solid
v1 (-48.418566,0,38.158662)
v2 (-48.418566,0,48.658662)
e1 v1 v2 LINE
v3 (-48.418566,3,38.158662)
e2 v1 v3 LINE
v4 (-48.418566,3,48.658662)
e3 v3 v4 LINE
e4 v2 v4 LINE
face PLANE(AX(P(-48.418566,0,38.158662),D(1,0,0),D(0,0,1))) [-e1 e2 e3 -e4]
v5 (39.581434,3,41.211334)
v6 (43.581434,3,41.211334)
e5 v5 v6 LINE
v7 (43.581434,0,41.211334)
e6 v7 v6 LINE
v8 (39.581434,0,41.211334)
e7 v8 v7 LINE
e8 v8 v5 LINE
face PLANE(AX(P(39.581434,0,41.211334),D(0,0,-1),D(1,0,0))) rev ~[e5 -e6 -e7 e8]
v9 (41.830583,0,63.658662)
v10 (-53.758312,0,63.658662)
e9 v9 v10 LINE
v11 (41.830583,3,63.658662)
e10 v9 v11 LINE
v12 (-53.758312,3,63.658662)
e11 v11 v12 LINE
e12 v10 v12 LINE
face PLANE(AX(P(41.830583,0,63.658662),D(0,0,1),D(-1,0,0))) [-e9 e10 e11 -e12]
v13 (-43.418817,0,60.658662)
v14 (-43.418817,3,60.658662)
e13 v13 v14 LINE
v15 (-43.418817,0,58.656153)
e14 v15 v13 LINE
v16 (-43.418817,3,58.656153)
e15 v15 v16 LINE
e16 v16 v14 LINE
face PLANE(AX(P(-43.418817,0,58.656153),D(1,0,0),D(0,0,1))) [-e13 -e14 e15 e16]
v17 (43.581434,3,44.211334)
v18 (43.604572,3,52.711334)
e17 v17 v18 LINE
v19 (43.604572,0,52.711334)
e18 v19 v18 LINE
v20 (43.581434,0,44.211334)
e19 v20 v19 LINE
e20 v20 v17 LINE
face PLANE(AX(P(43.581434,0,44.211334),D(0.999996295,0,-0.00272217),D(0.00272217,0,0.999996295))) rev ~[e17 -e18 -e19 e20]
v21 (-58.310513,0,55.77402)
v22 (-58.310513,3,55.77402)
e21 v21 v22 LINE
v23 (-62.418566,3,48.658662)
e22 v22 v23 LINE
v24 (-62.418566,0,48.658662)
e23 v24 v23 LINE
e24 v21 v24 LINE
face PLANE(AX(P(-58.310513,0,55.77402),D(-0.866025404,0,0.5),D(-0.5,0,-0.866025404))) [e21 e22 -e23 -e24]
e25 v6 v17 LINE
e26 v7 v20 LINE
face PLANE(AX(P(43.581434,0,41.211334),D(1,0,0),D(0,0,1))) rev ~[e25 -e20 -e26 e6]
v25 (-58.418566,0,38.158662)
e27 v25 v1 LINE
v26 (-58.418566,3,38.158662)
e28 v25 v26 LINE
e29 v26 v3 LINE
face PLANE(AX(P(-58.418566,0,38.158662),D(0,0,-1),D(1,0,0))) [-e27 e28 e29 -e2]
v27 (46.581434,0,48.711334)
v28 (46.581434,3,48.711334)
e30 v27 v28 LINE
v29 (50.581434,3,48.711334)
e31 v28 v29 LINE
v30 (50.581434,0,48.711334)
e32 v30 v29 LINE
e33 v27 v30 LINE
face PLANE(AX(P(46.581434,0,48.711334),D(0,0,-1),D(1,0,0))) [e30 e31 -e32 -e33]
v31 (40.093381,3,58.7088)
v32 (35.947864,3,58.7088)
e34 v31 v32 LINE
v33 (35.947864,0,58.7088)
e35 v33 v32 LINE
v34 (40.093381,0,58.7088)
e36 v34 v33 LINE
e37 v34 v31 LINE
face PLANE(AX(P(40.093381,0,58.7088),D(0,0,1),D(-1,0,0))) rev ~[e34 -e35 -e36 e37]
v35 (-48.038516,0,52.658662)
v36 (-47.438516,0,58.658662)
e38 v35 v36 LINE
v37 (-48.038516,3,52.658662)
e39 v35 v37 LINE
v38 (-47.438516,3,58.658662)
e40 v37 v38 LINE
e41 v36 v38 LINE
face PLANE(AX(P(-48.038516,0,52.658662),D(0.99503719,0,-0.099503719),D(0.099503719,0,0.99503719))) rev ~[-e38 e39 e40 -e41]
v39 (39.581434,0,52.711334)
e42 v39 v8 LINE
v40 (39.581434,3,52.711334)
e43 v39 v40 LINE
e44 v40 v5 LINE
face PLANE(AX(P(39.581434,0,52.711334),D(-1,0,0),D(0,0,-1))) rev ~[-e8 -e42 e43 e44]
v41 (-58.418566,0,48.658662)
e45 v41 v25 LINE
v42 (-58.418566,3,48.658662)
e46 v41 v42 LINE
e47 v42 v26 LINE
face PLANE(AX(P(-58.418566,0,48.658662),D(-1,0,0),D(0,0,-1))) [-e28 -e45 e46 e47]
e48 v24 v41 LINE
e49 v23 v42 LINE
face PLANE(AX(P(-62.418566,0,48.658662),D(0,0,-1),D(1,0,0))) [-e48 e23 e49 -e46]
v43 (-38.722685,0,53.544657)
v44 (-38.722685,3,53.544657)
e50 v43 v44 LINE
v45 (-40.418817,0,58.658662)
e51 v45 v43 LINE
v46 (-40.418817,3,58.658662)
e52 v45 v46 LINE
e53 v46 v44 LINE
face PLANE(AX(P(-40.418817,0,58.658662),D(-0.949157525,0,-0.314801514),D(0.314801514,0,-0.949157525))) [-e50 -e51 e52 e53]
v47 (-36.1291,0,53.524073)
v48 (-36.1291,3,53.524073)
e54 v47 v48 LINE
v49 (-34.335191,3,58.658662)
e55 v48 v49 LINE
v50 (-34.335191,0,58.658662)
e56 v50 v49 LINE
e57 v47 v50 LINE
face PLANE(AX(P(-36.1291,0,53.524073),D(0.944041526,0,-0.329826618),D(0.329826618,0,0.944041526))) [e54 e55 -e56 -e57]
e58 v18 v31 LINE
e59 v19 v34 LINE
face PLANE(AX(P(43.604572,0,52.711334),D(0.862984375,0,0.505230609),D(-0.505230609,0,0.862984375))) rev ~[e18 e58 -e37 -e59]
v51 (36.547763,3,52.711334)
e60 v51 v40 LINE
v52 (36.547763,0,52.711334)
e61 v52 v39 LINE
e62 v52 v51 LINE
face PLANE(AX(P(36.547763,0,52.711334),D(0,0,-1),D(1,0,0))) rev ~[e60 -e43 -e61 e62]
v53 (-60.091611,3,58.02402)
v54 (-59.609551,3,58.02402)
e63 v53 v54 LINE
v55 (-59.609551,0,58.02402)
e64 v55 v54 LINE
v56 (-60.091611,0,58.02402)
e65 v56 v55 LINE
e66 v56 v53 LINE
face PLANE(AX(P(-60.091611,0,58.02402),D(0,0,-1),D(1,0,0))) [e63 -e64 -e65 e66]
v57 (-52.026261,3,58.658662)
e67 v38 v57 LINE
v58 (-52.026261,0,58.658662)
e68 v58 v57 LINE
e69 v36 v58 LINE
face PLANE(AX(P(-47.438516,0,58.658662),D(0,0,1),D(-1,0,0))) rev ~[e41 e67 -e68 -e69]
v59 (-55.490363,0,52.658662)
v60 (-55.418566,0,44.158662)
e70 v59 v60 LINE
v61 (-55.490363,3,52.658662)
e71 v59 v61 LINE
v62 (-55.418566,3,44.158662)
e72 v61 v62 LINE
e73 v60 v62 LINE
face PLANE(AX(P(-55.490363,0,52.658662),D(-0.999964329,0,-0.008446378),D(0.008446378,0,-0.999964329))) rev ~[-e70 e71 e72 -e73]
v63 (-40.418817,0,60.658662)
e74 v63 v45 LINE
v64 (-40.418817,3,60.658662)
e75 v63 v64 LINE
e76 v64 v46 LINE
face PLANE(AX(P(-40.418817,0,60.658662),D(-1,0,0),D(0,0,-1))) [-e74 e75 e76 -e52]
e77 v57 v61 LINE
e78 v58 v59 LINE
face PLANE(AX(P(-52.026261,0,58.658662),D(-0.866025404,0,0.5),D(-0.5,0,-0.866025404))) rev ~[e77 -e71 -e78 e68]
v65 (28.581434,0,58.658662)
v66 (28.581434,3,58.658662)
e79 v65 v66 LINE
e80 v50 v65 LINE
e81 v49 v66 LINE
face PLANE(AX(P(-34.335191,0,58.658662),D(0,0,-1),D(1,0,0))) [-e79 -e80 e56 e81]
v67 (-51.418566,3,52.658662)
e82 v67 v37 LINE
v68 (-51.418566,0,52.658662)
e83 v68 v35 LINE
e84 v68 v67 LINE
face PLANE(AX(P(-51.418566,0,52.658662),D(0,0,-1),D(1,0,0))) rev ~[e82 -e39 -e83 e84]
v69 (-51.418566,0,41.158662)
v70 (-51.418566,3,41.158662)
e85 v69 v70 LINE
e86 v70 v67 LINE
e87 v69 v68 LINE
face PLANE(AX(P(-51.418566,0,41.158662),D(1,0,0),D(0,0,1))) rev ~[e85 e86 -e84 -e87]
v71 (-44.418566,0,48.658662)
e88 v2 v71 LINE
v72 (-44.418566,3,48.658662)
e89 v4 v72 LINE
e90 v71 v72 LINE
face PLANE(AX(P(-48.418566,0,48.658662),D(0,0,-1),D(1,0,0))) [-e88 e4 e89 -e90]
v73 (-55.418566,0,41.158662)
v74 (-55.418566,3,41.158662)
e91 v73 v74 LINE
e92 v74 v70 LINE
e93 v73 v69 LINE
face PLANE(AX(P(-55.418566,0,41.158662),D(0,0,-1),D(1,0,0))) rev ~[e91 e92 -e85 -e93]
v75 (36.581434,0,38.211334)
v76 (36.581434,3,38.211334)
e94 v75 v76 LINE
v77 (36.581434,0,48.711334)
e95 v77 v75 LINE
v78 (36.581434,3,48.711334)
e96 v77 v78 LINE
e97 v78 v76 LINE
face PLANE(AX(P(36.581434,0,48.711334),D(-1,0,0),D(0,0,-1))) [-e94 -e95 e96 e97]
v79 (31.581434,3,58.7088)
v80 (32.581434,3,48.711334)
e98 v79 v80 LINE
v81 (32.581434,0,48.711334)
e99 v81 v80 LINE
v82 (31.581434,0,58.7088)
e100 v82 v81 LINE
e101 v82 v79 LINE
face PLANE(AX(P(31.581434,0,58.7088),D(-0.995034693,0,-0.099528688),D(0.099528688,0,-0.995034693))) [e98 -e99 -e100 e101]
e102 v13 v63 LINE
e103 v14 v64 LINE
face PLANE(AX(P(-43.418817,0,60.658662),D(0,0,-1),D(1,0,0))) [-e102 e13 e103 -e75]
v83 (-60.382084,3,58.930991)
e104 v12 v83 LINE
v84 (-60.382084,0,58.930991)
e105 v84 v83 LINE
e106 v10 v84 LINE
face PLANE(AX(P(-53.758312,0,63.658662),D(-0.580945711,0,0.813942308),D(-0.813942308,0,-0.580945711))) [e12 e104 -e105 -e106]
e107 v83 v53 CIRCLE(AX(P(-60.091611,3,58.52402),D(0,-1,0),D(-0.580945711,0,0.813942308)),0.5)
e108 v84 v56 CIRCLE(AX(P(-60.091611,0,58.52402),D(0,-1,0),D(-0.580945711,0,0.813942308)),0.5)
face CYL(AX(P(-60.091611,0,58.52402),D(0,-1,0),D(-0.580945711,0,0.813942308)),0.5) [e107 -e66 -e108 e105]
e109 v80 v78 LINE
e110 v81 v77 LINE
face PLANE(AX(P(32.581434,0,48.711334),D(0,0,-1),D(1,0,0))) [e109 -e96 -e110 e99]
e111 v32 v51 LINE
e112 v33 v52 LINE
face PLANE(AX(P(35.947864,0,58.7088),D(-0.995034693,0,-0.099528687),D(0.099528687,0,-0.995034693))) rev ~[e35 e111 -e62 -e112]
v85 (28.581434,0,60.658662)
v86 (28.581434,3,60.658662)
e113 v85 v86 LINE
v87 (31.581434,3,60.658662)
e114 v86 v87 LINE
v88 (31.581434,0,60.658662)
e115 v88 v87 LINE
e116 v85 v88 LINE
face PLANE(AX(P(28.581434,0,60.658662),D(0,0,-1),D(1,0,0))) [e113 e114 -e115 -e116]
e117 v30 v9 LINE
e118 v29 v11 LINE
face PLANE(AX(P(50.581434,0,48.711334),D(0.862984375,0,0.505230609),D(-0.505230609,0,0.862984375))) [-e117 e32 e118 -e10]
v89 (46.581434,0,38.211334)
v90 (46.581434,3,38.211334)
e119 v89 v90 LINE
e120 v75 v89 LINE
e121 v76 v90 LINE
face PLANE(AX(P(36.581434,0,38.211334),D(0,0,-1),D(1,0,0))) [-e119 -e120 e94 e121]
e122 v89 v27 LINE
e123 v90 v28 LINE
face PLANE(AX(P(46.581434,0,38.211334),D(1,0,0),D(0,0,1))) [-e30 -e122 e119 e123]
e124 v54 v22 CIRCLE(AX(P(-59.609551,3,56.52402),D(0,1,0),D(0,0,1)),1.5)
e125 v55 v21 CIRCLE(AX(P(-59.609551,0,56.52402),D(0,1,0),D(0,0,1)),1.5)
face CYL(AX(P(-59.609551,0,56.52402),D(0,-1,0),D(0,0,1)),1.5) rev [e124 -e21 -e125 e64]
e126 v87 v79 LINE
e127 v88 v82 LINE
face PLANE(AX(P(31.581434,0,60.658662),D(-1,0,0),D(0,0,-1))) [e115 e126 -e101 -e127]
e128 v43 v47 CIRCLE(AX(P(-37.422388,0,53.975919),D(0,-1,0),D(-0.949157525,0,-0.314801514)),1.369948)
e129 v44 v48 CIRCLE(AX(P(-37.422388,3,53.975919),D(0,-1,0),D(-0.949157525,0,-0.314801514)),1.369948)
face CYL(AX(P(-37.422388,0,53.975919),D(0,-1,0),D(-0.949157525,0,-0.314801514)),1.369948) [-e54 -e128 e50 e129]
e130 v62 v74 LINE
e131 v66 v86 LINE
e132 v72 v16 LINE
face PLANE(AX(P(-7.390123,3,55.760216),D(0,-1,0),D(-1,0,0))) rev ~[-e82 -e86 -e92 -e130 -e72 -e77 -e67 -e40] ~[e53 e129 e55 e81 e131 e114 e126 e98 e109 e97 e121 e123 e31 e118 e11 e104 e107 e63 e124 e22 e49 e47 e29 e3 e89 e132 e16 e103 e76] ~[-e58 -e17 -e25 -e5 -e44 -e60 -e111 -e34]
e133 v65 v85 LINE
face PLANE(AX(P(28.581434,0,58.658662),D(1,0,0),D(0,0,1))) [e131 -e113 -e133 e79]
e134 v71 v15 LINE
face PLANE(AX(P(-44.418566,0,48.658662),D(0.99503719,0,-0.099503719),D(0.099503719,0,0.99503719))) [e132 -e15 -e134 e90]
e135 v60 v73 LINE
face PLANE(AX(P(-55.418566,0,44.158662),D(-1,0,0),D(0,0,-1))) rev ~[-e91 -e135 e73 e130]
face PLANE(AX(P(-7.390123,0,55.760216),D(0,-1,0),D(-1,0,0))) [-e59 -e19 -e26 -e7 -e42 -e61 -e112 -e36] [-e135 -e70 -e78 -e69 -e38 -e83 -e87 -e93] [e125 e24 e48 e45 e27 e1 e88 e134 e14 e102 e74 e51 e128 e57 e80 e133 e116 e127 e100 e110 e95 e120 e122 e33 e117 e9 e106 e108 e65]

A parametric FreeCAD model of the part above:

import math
import FreeCAD as App
import Part
import Sketcher
Q = App.Units.Quantity

doc = App.newDocument("Part")
body = doc.addObject("PartDesign::Body", "Body")

sketch1 = body.newObject("Sketcher::SketchObject", "Sketch")
sketch1.AttachmentSupport = (doc.getObject("XZ_Plane"), [""])
sketch1.MapMode = "FlatFace"
sketch1.addGeometry([
    Part.LineSegment(App.Vector(-58.418566, 48.658662, 0), App.Vector(-62.418566, 48.658662, 0)),
    Part.LineSegment(App.Vector(-62.418566, 48.658662, 0), App.Vector(-58.310513, 55.77402, 0)),
    Part.ArcOfCircle(Part.Circle(App.Vector(-59.609551, 56.52402, 0), App.Vector(0, 0, 1), 1.5), math.radians(-30), math.radians(90)),
    Part.LineSegment(App.Vector(-59.609551, 58.02402, 0), App.Vector(-60.091611, 58.02402, 0)),
    Part.ArcOfCircle(Part.Circle(App.Vector(-60.091611, 58.52402, 0), App.Vector(0, 0, 1), 0.5), math.radians(125.517086), math.radians(270)),
    Part.LineSegment(App.Vector(-60.382084, 58.930991, 0), App.Vector(-53.758312, 63.658662, 0)),
    Part.LineSegment(App.Vector(-53.758312, 63.658662, 0), App.Vector(41.830583, 63.658662, 0)),
    Part.LineSegment(App.Vector(41.830583, 63.658662, 0), App.Vector(50.581434, 48.711334, 0)),
    Part.LineSegment(App.Vector(50.581434, 48.711334, 0), App.Vector(46.581434, 48.711334, 0)),
    Part.LineSegment(App.Vector(46.581434, 48.711334, 0), App.Vector(46.581434, 38.211334, 0)),
    Part.LineSegment(App.Vector(46.581434, 38.211334, 0), App.Vector(36.581434, 38.211334, 0)),
    Part.LineSegment(App.Vector(36.581434, 38.211334, 0), App.Vector(36.581434, 48.711334, 0)),
    Part.LineSegment(App.Vector(36.581434, 48.711334, 0), App.Vector(32.581434, 48.711334, 0)),
    Part.LineSegment(App.Vector(32.581434, 48.711334, 0), App.Vector(31.581434, 58.7088, 0)),
    Part.LineSegment(App.Vector(31.581434, 58.7088, 0), App.Vector(31.581434, 60.658662, 0)),
    Part.LineSegment(App.Vector(31.581434, 60.658662, 0), App.Vector(28.581434, 60.658662, 0)),
    Part.LineSegment(App.Vector(28.581434, 60.658662, 0), App.Vector(28.581434, 58.658662, 0)),
    Part.LineSegment(App.Vector(28.581434, 58.658662, 0), App.Vector(-34.335191, 58.658662, 0)),
    Part.LineSegment(App.Vector(-34.335191, 58.658662, 0), App.Vector(-36.1291, 53.524073, 0)),
    Part.ArcOfCircle(Part.Circle(App.Vector(-37.422388, 53.975919, 0), App.Vector(0, 0, 1), 1.369948), math.radians(-161.651168), math.radians(-19.258252)),
    Part.LineSegment(App.Vector(-38.722685, 53.544657, 0), App.Vector(-40.418817, 58.658662, 0)),
    Part.LineSegment(App.Vector(-40.418817, 58.658662, 0), App.Vector(-40.418817, 60.658662, 0)),
    Part.LineSegment(App.Vector(-40.418817, 60.658662, 0), App.Vector(-43.418817, 60.658662, 0)),
    Part.LineSegment(App.Vector(-43.418817, 60.658662, 0), App.Vector(-43.418817, 58.656153, 0)),
    Part.LineSegment(App.Vector(-43.418817, 58.656153, 0), App.Vector(-44.418566, 48.658662, 0)),
    Part.LineSegment(App.Vector(-44.418566, 48.658662, 0), App.Vector(-48.418566, 48.658662, 0)),
    Part.LineSegment(App.Vector(-48.418566, 48.658662, 0), App.Vector(-48.418566, 38.158662, 0)),
    Part.LineSegment(App.Vector(-48.418566, 38.158662, 0), App.Vector(-58.418566, 38.158662, 0)),
    Part.LineSegment(App.Vector(-58.418566, 38.158662, 0), App.Vector(-58.418566, 48.658662, 0)),
    Part.LineSegment(App.Vector(36.547763, 52.711334, 0), App.Vector(39.581434, 52.711334, 0)),
    Part.LineSegment(App.Vector(39.581434, 52.711334, 0), App.Vector(39.581434, 41.211334, 0)),
    Part.LineSegment(App.Vector(39.581434, 41.211334, 0), App.Vector(43.581434, 41.211334, 0)),
    Part.LineSegment(App.Vector(43.581434, 41.211334, 0), App.Vector(43.581434, 44.211334, 0)),
    Part.LineSegment(App.Vector(43.581434, 44.211334, 0), App.Vector(43.604572, 52.711334, 0)),
    Part.LineSegment(App.Vector(43.604572, 52.711334, 0), App.Vector(40.093381, 58.7088, 0)),
    Part.LineSegment(App.Vector(40.093381, 58.7088, 0), App.Vector(35.947864, 58.7088, 0)),
    Part.LineSegment(App.Vector(35.947864, 58.7088, 0), App.Vector(36.547763, 52.711334, 0)),
    Part.LineSegment(App.Vector(-55.418566, 41.158662, 0), App.Vector(-51.418566, 41.158662, 0)),
    Part.LineSegment(App.Vector(-51.418566, 41.158662, 0), App.Vector(-51.418566, 52.658662, 0)),
    Part.LineSegment(App.Vector(-51.418566, 52.658662, 0), App.Vector(-48.038516, 52.658662, 0)),
    Part.LineSegment(App.Vector(-48.038516, 52.658662, 0), App.Vector(-47.438516, 58.658662, 0)),
    Part.LineSegment(App.Vector(-47.438516, 58.658662, 0), App.Vector(-52.026261, 58.658662, 0)),
    Part.LineSegment(App.Vector(-52.026261, 58.658662, 0), App.Vector(-55.490363, 52.658662, 0)),
    Part.LineSegment(App.Vector(-55.490363, 52.658662, 0), App.Vector(-55.418566, 44.158662, 0)),
    Part.LineSegment(App.Vector(-55.418566, 44.158662, 0), App.Vector(-55.418566, 41.158662, 0)),
], False)
sketch1.addConstraint([
    Sketcher.Constraint("Coincident", 0, 2, 1, 1),
    Sketcher.Constraint("Tangent", 1, 2, 2, 1),
    Sketcher.Constraint("Tangent", 2, 2, 3, 1),
    Sketcher.Constraint("Tangent", 3, 2, 4, 2),
    Sketcher.Constraint("Tangent", 4, 1, 5, 1),
    Sketcher.Constraint("Coincident", 5, 2, 6, 1),
    Sketcher.Constraint("Coincident", 6, 2, 7, 1),
    Sketcher.Constraint("Coincident", 7, 2, 8, 1),
    Sketcher.Constraint("Coincident", 8, 2, 9, 1),
    Sketcher.Constraint("Coincident", 9, 2, 10, 1),
    Sketcher.Constraint("Coincident", 10, 2, 11, 1),
    Sketcher.Constraint("Coincident", 11, 2, 12, 1),
    Sketcher.Constraint("Coincident", 12, 2, 13, 1),
    Sketcher.Constraint("Coincident", 13, 2, 14, 1),
    Sketcher.Constraint("Coincident", 14, 2, 15, 1),
    Sketcher.Constraint("Coincident", 15, 2, 16, 1),
    Sketcher.Constraint("Coincident", 16, 2, 17, 1),
    Sketcher.Constraint("Coincident", 17, 2, 18, 1),
    Sketcher.Constraint("Tangent", 18, 2, 19, 2),
    Sketcher.Constraint("Tangent", 19, 1, 20, 1),
    Sketcher.Constraint("Coincident", 20, 2, 21, 1),
    Sketcher.Constraint("Coincident", 21, 2, 22, 1),
    Sketcher.Constraint("Coincident", 22, 2, 23, 1),
    Sketcher.Constraint("Coincident", 23, 2, 24, 1),
    Sketcher.Constraint("Coincident", 24, 2, 25, 1),
    Sketcher.Constraint("Coincident", 25, 2, 26, 1),
    Sketcher.Constraint("Coincident", 26, 2, 27, 1),
    Sketcher.Constraint("Coincident", 27, 2, 28, 1),
    Sketcher.Constraint("Coincident", 28, 2, 0, 1),
    Sketcher.Constraint("Coincident", 29, 2, 30, 1),
    Sketcher.Constraint("Coincident", 30, 2, 31, 1),
    Sketcher.Constraint("Coincident", 31, 2, 32, 1),
    Sketcher.Constraint("Coincident", 32, 2, 33, 1),
    Sketcher.Constraint("Coincident", 33, 2, 34, 1),
    Sketcher.Constraint("Coincident", 34, 2, 35, 1),
    Sketcher.Constraint("Coincident", 35, 2, 36, 1),
    Sketcher.Constraint("Coincident", 36, 2, 29, 1),
    Sketcher.Constraint("Coincident", 37, 2, 38, 1),
    Sketcher.Constraint("Coincident", 38, 2, 39, 1),
    Sketcher.Constraint("Coincident", 39, 2, 40, 1),
    Sketcher.Constraint("Coincident", 40, 2, 41, 1),
    Sketcher.Constraint("Coincident", 41, 2, 42, 1),
    Sketcher.Constraint("Coincident", 42, 2, 43, 1),
    Sketcher.Constraint("Coincident", 43, 2, 44, 1),
    Sketcher.Constraint("Coincident", 44, 2, 37, 1),
    Sketcher.Constraint("Horizontal", 0),
    Sketcher.Constraint("Horizontal", 3),
    Sketcher.Constraint("Horizontal", 6),
    Sketcher.Constraint("Horizontal", 8),
    Sketcher.Constraint("Vertical", 9),
    Sketcher.Constraint("Horizontal", 10),
    Sketcher.Constraint("Vertical", 11),
    Sketcher.Constraint("Horizontal", 12),
    Sketcher.Constraint("Vertical", 14),
    Sketcher.Constraint("Horizontal", 15),
    Sketcher.Constraint("Vertical", 16),
    Sketcher.Constraint("Horizontal", 17),
    Sketcher.Constraint("Vertical", 21),
    Sketcher.Constraint("Horizontal", 22),
    Sketcher.Constraint("Vertical", 23),
    Sketcher.Constraint("Horizontal", 25),
    Sketcher.Constraint("Vertical", 26),
    Sketcher.Constraint("Horizontal", 27),
    Sketcher.Constraint("Vertical", 28),
    Sketcher.Constraint("Horizontal", 29),
    Sketcher.Constraint("Vertical", 30),
    Sketcher.Constraint("Horizontal", 31),
    Sketcher.Constraint("Vertical", 32),
    Sketcher.Constraint("Horizontal", 35),
    Sketcher.Constraint("Horizontal", 37),
    Sketcher.Constraint("Vertical", 38),
    Sketcher.Constraint("Horizontal", 39),
    Sketcher.Constraint("Horizontal", 41),
    Sketcher.Constraint("Vertical", 44),
    Sketcher.Constraint("Parallel", 7, 34),
    Sketcher.Constraint("Parallel", 13, 36),
    Sketcher.Constraint("Parallel", 24, 40),
    Sketcher.Constraint("Parallel", 1, 42),
    Sketcher.Constraint("Horizontal", 8, 2, 11, 2),
    Sketcher.Constraint("Horizontal", 17, 2, 20, 2),
    Sketcher.Constraint("Horizontal", 15, 2, 21, 2),
    Sketcher.Constraint("Horizontal", 0, 2, 24, 2),
    Sketcher.Constraint("Horizontal", 29, 2, 33, 2),
    Sketcher.Constraint("Horizontal", 13, 2, 34, 2),
    Sketcher.Constraint("Horizontal", 20, 2, 40, 2),
    Sketcher.Constraint("Horizontal", 39, 2, 42, 2),
    Sketcher.Constraint("Equal", 0, 8),
    Sketcher.Constraint("Equal", 8, 12),
    Sketcher.Constraint("Equal", 15, 22),
    Sketcher.Constraint("Equal", 12, 25),
    Sketcher.Constraint("Equal", 10, 27),
    Sketcher.Constraint("Equal", 25, 31),
    Sketcher.Constraint("Equal", 31, 37),
    Sketcher.Constraint("Equal", 11, 26),
    Sketcher.Constraint("Equal", 22, 32),
    Sketcher.Constraint("Equal", 30, 38),
    Sketcher.Constraint("Equal", 32, 44),
    Sketcher.Constraint("Equal", 13, 24),
    Sketcher.Constraint("Radius", 2, Q("1.5 mm")),
    Sketcher.Constraint("Radius", 4, Q("0.5 mm")),
    Sketcher.Constraint("DistanceX", 0, 2, 0, 1, Q("4 mm")),
    Sketcher.Constraint("DistanceX", 10, 2, 10, 1, Q("10 mm")),
    Sketcher.Constraint("DistanceX", 15, 2, 15, 1, Q("3 mm")),
    Sketcher.Constraint("DistanceY", 16, 2, 16, 1, Q("2 mm")),
    Sketcher.Constraint("Angle", 1, Q("60 deg")),
    Sketcher.Constraint("DistanceY", 9, 2, 9, 1, Q("10.5 mm")),
    Sketcher.Constraint("DistanceY", 30, 2, 30, 1, Q("11.5 mm")),
    Sketcher.Constraint("DistanceX", 13, 2, 12, 2, Q("1 mm")),
    Sketcher.Constraint("DistanceY", 14, 2, 6, 2, Q("3 mm")),
    Sketcher.Constraint("DistanceY", 24, 2, 20, 2, Q("10 mm")),
    Sketcher.Constraint("DistanceX", 11, 2, 29, 2, Q("3 mm")),
    Sketcher.Constraint("DistanceY", 11, 2, 29, 2, Q("4 mm")),
    Sketcher.Constraint("DistanceX", 37, 2, 26, 2, Q("3 mm")),
    Sketcher.Constraint("DistanceY", 26, 2, 37, 2, Q("3 mm")),
    Sketcher.Constraint("DistanceX", 39, 2, 40, 2, Q("0.6 mm")),
    Sketcher.Constraint("Radius", 19, Q("1.369948 mm")),
    Sketcher.Constraint("DistanceX", 3, 2, 3, 1, Q("0.48206 mm")),
    Sketcher.Constraint("DistanceX", 29, 1, 29, 2, Q("3.033671 mm")),
    Sketcher.Constraint("DistanceX", 39, 1, 39, 2, Q("3.38005 mm")),
    Sketcher.Constraint("DistanceY", 14, 1, 14, 2, Q("1.949862 mm")),
    Sketcher.Constraint("DistanceY", 23, 2, 23, 1, Q("2.002509 mm")),
    Sketcher.Constraint("DistanceY", -1, 1, 13, 2, Q("58.7088 mm")),
    Sketcher.Constraint("DistanceX", 18, 2, -1, 1, Q("36.1291 mm")),
    Sketcher.Constraint("DistanceY", 19, 3, 2, 3, Q("2.548101 mm")),
    Sketcher.Constraint("DistanceX", 4, 3, 5, 2, Q("6.333299 mm")),
    Sketcher.Constraint("Distance", 5, Q("8.137888 mm")),
    Sketcher.Constraint("Distance", 7, Q("17.320508 mm")),
    Sketcher.Constraint("Distance", 20, Q("5.387942 mm")),
    Sketcher.Constraint("DistanceX", 6, 1, 6, 2, Q("95.588895 mm")),
    Sketcher.Constraint("DistanceX", 17, 2, 17, 1, Q("62.916625 mm")),
    Sketcher.Constraint("DistanceX", 35, 2, 35, 1, Q("4.145516 mm")),
    Sketcher.Constraint("DistanceX", 41, 2, 41, 1, Q("4.587745 mm")),
])
pad1 = body.newObject("PartDesign::Pad", "Pad")
pad1.Profile = sketch1
pad1.Length = 3
pad1.Reversed = True

doc.recompute()
